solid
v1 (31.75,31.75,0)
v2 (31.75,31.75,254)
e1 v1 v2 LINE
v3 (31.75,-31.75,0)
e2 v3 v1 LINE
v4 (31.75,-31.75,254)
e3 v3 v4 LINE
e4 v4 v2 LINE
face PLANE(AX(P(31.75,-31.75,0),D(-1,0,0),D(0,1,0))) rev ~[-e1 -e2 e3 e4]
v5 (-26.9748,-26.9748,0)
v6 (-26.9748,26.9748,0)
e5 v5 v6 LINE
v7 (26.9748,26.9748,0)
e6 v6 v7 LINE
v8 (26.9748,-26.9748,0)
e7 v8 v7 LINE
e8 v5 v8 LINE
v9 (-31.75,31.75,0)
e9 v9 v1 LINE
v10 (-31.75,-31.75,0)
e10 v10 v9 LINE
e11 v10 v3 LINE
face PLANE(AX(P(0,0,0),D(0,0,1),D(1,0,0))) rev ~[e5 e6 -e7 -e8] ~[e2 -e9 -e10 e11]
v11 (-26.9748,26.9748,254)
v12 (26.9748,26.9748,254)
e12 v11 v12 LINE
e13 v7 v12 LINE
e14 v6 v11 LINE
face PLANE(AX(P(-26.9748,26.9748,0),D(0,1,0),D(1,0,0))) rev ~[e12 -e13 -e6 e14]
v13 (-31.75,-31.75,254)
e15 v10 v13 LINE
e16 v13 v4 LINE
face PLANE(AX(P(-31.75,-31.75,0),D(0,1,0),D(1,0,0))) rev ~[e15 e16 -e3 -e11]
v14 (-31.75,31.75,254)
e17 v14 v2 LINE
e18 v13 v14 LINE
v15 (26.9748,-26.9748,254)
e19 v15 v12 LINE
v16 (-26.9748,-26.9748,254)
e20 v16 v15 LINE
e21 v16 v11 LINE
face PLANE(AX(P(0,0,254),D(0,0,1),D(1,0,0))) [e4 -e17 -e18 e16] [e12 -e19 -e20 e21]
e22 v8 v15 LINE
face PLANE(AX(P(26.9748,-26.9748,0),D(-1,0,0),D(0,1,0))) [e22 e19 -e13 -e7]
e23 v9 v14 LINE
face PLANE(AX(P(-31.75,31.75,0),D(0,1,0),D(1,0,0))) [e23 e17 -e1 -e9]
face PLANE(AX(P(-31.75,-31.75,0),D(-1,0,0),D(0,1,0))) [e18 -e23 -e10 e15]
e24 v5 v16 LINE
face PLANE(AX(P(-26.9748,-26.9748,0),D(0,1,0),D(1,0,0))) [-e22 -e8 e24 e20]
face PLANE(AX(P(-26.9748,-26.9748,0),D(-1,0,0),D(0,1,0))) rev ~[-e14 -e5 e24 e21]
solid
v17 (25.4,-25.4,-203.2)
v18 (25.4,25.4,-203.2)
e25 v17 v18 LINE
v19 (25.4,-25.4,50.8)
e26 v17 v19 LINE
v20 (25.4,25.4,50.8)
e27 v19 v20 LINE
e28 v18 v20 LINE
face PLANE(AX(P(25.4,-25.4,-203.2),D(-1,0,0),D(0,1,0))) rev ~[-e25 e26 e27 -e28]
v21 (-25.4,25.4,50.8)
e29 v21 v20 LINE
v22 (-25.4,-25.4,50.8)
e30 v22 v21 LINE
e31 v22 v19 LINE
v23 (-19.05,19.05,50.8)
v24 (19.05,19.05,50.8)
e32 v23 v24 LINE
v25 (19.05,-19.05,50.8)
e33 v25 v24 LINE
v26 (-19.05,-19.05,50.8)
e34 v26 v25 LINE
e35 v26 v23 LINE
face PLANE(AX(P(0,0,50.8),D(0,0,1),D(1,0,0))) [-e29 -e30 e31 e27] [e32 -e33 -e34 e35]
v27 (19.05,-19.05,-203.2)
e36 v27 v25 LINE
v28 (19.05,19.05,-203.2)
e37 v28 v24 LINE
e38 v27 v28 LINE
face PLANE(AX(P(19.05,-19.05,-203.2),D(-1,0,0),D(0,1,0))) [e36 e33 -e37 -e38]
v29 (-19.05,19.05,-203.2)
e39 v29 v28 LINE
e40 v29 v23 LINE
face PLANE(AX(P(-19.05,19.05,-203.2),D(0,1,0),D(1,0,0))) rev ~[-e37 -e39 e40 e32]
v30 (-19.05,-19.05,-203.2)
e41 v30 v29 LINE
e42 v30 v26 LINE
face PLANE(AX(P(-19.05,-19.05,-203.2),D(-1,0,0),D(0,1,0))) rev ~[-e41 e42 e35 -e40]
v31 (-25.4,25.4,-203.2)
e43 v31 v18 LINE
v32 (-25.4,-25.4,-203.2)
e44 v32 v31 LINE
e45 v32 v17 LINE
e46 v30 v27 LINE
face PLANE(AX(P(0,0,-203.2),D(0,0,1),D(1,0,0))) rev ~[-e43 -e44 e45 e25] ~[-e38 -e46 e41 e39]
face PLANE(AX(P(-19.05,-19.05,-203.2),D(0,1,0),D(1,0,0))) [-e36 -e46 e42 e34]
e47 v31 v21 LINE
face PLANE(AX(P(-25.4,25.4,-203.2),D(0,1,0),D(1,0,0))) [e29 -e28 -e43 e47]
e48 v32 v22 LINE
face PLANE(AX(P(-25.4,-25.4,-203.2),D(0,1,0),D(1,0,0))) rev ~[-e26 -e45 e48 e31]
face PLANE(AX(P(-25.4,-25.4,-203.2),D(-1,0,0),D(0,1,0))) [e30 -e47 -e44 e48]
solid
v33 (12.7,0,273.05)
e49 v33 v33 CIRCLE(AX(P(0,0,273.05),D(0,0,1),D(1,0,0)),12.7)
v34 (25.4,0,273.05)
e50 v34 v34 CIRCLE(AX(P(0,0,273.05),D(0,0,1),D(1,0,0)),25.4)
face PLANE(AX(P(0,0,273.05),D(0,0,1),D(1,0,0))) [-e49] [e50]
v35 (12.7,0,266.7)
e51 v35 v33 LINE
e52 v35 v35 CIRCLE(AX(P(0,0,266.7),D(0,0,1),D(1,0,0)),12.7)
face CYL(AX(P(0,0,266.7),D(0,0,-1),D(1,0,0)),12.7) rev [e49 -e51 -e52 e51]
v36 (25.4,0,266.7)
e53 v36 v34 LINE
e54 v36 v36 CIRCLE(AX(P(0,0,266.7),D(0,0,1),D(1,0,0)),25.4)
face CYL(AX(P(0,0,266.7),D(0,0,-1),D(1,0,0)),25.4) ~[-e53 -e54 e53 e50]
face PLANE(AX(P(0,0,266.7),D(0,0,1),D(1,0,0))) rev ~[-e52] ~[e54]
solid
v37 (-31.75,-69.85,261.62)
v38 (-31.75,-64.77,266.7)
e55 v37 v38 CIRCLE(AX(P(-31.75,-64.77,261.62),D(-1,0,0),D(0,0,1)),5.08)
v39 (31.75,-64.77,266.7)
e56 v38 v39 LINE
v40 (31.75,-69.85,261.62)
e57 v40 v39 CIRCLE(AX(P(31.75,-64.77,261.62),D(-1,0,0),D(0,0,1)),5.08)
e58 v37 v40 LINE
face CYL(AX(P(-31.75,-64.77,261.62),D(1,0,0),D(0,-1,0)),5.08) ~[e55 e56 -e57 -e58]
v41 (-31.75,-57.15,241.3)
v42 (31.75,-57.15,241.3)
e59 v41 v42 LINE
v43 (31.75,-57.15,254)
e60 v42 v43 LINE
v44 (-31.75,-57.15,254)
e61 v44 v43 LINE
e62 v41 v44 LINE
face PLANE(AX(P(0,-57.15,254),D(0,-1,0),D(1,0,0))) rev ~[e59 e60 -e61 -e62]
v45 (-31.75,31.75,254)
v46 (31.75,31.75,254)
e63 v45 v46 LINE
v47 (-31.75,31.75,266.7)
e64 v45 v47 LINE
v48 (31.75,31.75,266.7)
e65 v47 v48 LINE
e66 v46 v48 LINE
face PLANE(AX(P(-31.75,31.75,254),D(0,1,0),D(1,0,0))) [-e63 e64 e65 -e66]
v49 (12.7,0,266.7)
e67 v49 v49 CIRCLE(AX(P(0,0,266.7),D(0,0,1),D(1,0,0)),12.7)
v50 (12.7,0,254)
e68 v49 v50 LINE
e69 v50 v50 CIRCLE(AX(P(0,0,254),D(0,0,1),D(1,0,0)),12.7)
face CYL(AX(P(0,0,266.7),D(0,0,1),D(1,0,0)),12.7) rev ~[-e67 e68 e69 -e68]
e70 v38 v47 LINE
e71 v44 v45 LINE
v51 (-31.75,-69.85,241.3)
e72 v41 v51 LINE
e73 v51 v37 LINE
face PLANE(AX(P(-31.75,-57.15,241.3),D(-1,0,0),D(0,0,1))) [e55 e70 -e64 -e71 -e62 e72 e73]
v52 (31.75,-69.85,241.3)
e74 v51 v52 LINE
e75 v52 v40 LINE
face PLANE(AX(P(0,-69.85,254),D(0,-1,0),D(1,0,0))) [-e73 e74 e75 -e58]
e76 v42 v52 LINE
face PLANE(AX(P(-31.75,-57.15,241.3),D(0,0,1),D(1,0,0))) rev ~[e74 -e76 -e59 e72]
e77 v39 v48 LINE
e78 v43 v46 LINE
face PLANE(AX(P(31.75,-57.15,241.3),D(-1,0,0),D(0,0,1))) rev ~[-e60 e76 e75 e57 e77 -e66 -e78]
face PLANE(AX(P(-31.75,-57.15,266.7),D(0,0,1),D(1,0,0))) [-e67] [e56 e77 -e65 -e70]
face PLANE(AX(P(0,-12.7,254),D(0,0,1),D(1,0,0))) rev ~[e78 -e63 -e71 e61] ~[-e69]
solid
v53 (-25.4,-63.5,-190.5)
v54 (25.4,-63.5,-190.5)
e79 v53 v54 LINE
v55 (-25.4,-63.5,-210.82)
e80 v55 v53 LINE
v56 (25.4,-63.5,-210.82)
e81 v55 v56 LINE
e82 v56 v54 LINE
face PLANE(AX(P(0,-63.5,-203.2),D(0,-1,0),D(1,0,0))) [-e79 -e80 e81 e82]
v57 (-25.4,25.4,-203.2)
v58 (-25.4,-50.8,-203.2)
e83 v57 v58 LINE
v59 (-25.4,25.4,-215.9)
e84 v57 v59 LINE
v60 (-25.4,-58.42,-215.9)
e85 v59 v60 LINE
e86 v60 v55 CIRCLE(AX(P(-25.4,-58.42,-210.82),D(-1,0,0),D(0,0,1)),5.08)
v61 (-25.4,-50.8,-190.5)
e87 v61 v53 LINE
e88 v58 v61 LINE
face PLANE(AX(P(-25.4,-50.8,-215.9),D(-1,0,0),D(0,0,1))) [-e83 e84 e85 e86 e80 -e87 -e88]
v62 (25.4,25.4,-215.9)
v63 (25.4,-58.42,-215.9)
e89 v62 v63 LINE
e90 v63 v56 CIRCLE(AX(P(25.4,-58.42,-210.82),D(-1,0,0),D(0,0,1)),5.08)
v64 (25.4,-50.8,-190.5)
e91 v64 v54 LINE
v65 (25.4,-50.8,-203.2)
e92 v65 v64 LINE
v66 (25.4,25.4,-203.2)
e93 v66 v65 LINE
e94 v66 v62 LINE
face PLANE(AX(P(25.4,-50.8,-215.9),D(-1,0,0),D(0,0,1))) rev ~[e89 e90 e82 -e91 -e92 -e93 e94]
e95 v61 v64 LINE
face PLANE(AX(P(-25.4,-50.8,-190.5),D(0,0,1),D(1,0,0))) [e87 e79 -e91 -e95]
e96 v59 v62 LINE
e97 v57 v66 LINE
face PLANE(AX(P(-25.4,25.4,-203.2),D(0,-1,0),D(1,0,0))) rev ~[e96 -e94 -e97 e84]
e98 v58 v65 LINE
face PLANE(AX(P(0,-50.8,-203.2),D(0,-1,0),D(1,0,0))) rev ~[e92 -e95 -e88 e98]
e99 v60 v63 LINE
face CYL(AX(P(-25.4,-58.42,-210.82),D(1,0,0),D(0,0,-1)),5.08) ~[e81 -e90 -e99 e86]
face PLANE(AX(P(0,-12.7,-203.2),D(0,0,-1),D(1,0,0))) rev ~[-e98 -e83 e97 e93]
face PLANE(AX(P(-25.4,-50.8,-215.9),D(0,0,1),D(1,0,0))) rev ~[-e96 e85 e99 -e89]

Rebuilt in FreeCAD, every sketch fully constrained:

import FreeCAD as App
import Part
import Sketcher
from FreeCAD import Vector
Q = App.Units.Quantity


def edges_at(feature, points):
    """Names of the edges that pass closest to the given points."""
    edges = feature.Shape.Edges
    near = lambda p: min(range(len(edges)), key=lambda i: edges[i].distToShape(Part.Vertex(*p))[0])
    return sorted({f"Edge{near(p) + 1}" for p in points})

doc = App.newDocument("Part")
params = doc.addObject("Spreadsheet::Sheet", "Params")
for row, (alias, value) in enumerate([
    ("sketch1_width", "2 in"),
    ("sketch1_width2", "1.5 in"),
    ("pad1_length", "10 in"),
    ("sketch2_width", "2.5 in"),
    ("sketch2_width2", "2.124 in"),
    ("pad2_length", "10 in"),
    ("sketch3_width", "2.5 in"),
    ("sketch3_height", "3.5 in"),
    ("pad3_length", "0.5 in"),
    ("sketch4_height", "1 in"),
    ("sketch4_width", "2.5 in"),
    ("pad4_length", "0.5 in"),
    ("sketch5_diameter", "1 in"),
    ("pocket1_length", "1 in"),
    ("fillet_radius", "0.2 in"),
    ("sketch6_width", "2 in"),
    ("sketch6_height", "3 in"),
    ("pad5_length", "0.5 in"),
    ("sketch7_width", "2 in"),
    ("sketch7_height", "1 in"),
    ("pad6_length", "0.5 in"),
    ("fillet2_radius", "0.2 in"),
    ("sketch8_diameter", "2 in"),
    ("sketch8_diameter2", "1 in"),
    ("pad7_length", "0.25 in"),
], start=1):
    params.set(f"A{row}", alias)
    params.set(f"B{row}", "=" + value)
    params.setAlias(f"B{row}", alias)

body = doc.addObject("PartDesign::Body", "Body")

# Sketch on XY plane
sketch1 = doc.addObject("Sketcher::SketchObject", "Sketch")
body.addObject(sketch1)
sketch1.AttachmentSupport = (doc.XY_Plane, [""])
sketch1.MapMode = "FlatFace"
sketch1.addGeometry([
    Part.LineSegment(Vector(-25.4, 25.4, 0), Vector(-25.4, -25.4, 0)),  # 0
    Part.LineSegment(Vector(-25.4, -25.4, 0), Vector(25.4, -25.4, 0)),  # 1
    Part.LineSegment(Vector(25.4, -25.4, 0), Vector(25.4, 25.4, 0)),  # 2
    Part.LineSegment(Vector(25.4, 25.4, 0), Vector(-25.4, 25.4, 0)),  # 3
    Part.LineSegment(Vector(19.05, -19.05, 0), Vector(-19.05, -19.05, 0)),  # 4
    Part.LineSegment(Vector(-19.05, -19.05, 0), Vector(-19.05, 19.05, 0)),  # 5
    Part.LineSegment(Vector(-19.05, 19.05, 0), Vector(19.05, 19.05, 0)),  # 6
    Part.LineSegment(Vector(19.05, 19.05, 0), Vector(19.05, -19.05, 0)),  # 7
], False)
sketch1.addConstraint([
    Sketcher.Constraint("Coincident", 0, 2, 1, 1),
    Sketcher.Constraint("Coincident", 1, 2, 2, 1),
    Sketcher.Constraint("Coincident", 2, 2, 3, 1),
    Sketcher.Constraint("Coincident", 3, 2, 0, 1),
    Sketcher.Constraint("Coincident", 4, 2, 5, 1),
    Sketcher.Constraint("Coincident", 5, 2, 6, 1),
    Sketcher.Constraint("Coincident", 6, 2, 7, 1),
    Sketcher.Constraint("Coincident", 7, 2, 4, 1),
    Sketcher.Constraint("Vertical", 0),
    Sketcher.Constraint("Horizontal", 1),
    Sketcher.Constraint("Vertical", 2),
    Sketcher.Constraint("Horizontal", 3),
    Sketcher.Constraint("Horizontal", 4),
    Sketcher.Constraint("Vertical", 5),
    Sketcher.Constraint("Horizontal", 6),
    Sketcher.Constraint("Vertical", 7),
    Sketcher.Constraint("Symmetric", 0, 2, 2, 2, -1, 1),
    Sketcher.Constraint("Symmetric", 4, 2, 6, 2, -1, 1),
    Sketcher.Constraint("Equal", 3, 0),
    Sketcher.Constraint("Equal", 6, 5),
    Sketcher.Constraint("DistanceX", 1, 1, 1, 2, Q("2 in")),
    Sketcher.Constraint("DistanceX", 4, 2, 4, 1, Q("1.5 in")),
])
sketch1.setExpression("Constraints[20]", "Params.sketch1_width")
sketch1.setExpression("Constraints[21]", "Params.sketch1_width2")
pad1 = doc.addObject("PartDesign::Pad", "Pad")
body.addObject(pad1)
pad1.Profile = sketch1
pad1.setExpression("Length", "Params.pad1_length")
body2 = doc.addObject("PartDesign::Body", "Body001")

# Sketch on XY plane
sketch2 = doc.addObject("Sketcher::SketchObject", "Sketch001")
body2.addObject(sketch2)
sketch2.AttachmentSupport = (doc.getObject("XY_Plane001"), [""])
sketch2.MapMode = "FlatFace"
sketch2.addGeometry([
    Part.LineSegment(Vector(-31.75, 31.75, 0), Vector(-31.75, -31.75, 0)),  # 0
    Part.LineSegment(Vector(-31.75, -31.75, 0), Vector(31.75, -31.75, 0)),  # 1
    Part.LineSegment(Vector(31.75, -31.75, 0), Vector(31.75, 31.75, 0)),  # 2
    Part.LineSegment(Vector(31.75, 31.75, 0), Vector(-31.75, 31.75, 0)),  # 3
    Part.LineSegment(Vector(26.9748, -26.9748, 0), Vector(-26.9748, -26.9748, 0)),  # 4
    Part.LineSegment(Vector(-26.9748, -26.9748, 0), Vector(-26.9748, 26.9748, 0)),  # 5
    Part.LineSegment(Vector(-26.9748, 26.9748, 0), Vector(26.9748, 26.9748, 0)),  # 6
    Part.LineSegment(Vector(26.9748, 26.9748, 0), Vector(26.9748, -26.9748, 0)),  # 7
], False)
sketch2.addConstraint([
    Sketcher.Constraint("Coincident", 0, 2, 1, 1),
    Sketcher.Constraint("Coincident", 1, 2, 2, 1),
    Sketcher.Constraint("Coincident", 2, 2, 3, 1),
    Sketcher.Constraint("Coincident", 3, 2, 0, 1),
    Sketcher.Constraint("Coincident", 4, 2, 5, 1),
    Sketcher.Constraint("Coincident", 5, 2, 6, 1),
    Sketcher.Constraint("Coincident", 6, 2, 7, 1),
    Sketcher.Constraint("Coincident", 7, 2, 4, 1),
    Sketcher.Constraint("Vertical", 0),
    Sketcher.Constraint("Horizontal", 1),
    Sketcher.Constraint("Vertical", 2),
    Sketcher.Constraint("Horizontal", 3),
    Sketcher.Constraint("Horizontal", 4),
    Sketcher.Constraint("Vertical", 5),
    Sketcher.Constraint("Horizontal", 6),
    Sketcher.Constraint("Vertical", 7),
    Sketcher.Constraint("Symmetric", 0, 2, 2, 2, -1, 1),
    Sketcher.Constraint("Symmetric", 4, 2, 6, 2, -1, 1),
    Sketcher.Constraint("Equal", 3, 0),
    Sketcher.Constraint("Equal", 6, 5),
    Sketcher.Constraint("DistanceX", 1, 1, 1, 2, Q("2.5 in")),
    Sketcher.Constraint("DistanceX", 4, 2, 4, 1, Q("2.124 in")),
])
sketch2.setExpression("Constraints[20]", "Params.sketch2_width")
sketch2.setExpression("Constraints[21]", "Params.sketch2_width2")
pad2 = doc.addObject("PartDesign::Pad", "Pad001")
body2.addObject(pad2)
pad2.Profile = sketch2
pad2.setExpression("Length", "Params.pad2_length")
body3 = doc.addObject("PartDesign::Body", "Body002")
doc.recompute()

body.Placement = App.Placement(Vector(0, 0, -203.2), App.Rotation(Vector(0, 0, 1), 0))
boolean = doc.addObject("PartDesign::Boolean", "Boolean")
body3.addObject(boolean)
boolean.Type = "Fuse"
boolean.addObjects([body])
body4 = doc.addObject("PartDesign::Body", "Body003")

# Sketch on XY plane
sketch3 = doc.addObject("Sketcher::SketchObject", "Sketch002")
body4.addObject(sketch3)
sketch3.AttachmentSupport = (doc.getObject("XY_Plane003"), [""])
sketch3.MapMode = "FlatFace"
sketch3.AttachmentOffset = App.Placement(Vector(0, 0, 10 * 25.4), App.Rotation())
sketch3.addGeometry([
    Part.LineSegment(Vector(-31.75, 31.75, 0), Vector(-31.75, -57.15, 0)),
    Part.LineSegment(Vector(-31.75, -57.15, 0), Vector(31.75, -57.15, 0)),
    Part.LineSegment(Vector(31.75, -57.15, 0), Vector(31.75, 31.75, 0)),
    Part.LineSegment(Vector(31.75, 31.75, 0), Vector(-31.75, 31.75, 0)),
], False)
sketch3.addConstraint([
    Sketcher.Constraint("Coincident", 0, 2, 1, 1),
    Sketcher.Constraint("Coincident", 1, 2, 2, 1),
    Sketcher.Constraint("Coincident", 2, 2, 3, 1),
    Sketcher.Constraint("Coincident", 3, 2, 0, 1),
    Sketcher.Constraint("Vertical", 0),
    Sketcher.Constraint("Horizontal", 1),
    Sketcher.Constraint("Vertical", 2),
    Sketcher.Constraint("Horizontal", 3),
    Sketcher.Constraint("DistanceX", 1, 1, 1, 2, Q("2.5 in")),
    Sketcher.Constraint("DistanceY", 0, 2, 0, 1, Q("3.5 in")),
    Sketcher.Constraint("DistanceX", 0, 2, -1, 1, Q("1.25 in")),
    Sketcher.Constraint("DistanceY", 0, 2, -1, 1, Q("2.25 in")),
])
sketch3.setExpression("Constraints[8]", "Params.sketch3_width")
sketch3.setExpression("Constraints[9]", "Params.sketch3_height")
pad3 = doc.addObject("PartDesign::Pad", "Pad002")
body4.addObject(pad3)
pad3.Profile = sketch3
pad3.setExpression("Length", "Params.pad3_length")

# Sketch on XZ plane
sketch4 = doc.addObject("Sketcher::SketchObject", "Sketch003")
body4.addObject(sketch4)
sketch4.AttachmentSupport = (doc.getObject("XZ_Plane003"), [""])
sketch4.MapMode = "FlatFace"
sketch4.AttachmentOffset = App.Placement(Vector(0, 0, 2.25 * 25.4), App.Rotation())
sketch4.addGeometry([
    Part.LineSegment(Vector(-31.75, 266.7, 0), Vector(-31.75, 241.3, 0)),
    Part.LineSegment(Vector(-31.75, 241.3, 0), Vector(31.75, 241.3, 0)),
    Part.LineSegment(Vector(31.75, 241.3, 0), Vector(31.75, 266.7, 0)),
    Part.LineSegment(Vector(31.75, 266.7, 0), Vector(-31.75, 266.7, 0)),
], False)
sketch4.addConstraint([
    Sketcher.Constraint("Coincident", 0, 2, 1, 1),
    Sketcher.Constraint("Coincident", 1, 2, 2, 1),
    Sketcher.Constraint("Coincident", 2, 2, 3, 1),
    Sketcher.Constraint("Coincident", 3, 2, 0, 1),
    Sketcher.Constraint("Vertical", 0),
    Sketcher.Constraint("Horizontal", 1),
    Sketcher.Constraint("Vertical", 2),
    Sketcher.Constraint("Horizontal", 3),
    Sketcher.Constraint("DistanceY", 0, 2, 0, 1, Q("1 in")),
    Sketcher.Constraint("DistanceX", 1, 1, 1, 2, Q("2.5 in")),
    Sketcher.Constraint("DistanceY", -1, 1, 0, 2, Q("9.5 in")),
    Sketcher.Constraint("DistanceX", 0, 2, -1, 1, Q("1.25 in")),
])
sketch4.setExpression("Constraints[8]", "Params.sketch4_height")
sketch4.setExpression("Constraints[9]", "Params.sketch4_width")
pad4 = doc.addObject("PartDesign::Pad", "Pad003")
body4.addObject(pad4)
pad4.Profile = sketch4
pad4.setExpression("Length", "Params.pad4_length")

# Sketch on XY plane
sketch5 = doc.addObject("Sketcher::SketchObject", "Sketch004")
body4.addObject(sketch5)
sketch5.AttachmentSupport = (doc.getObject("XY_Plane003"), [""])
sketch5.MapMode = "FlatFace"
sketch5.AttachmentOffset = App.Placement(Vector(0, 0, 10.5 * 25.4), App.Rotation())
sketch5.addGeometry(Part.Circle(Vector(0, 0, 0), Vector(0, 0, 1), 12.7), False)
sketch5.addConstraint([
    Sketcher.Constraint("Coincident", 0, 3, -1, 1),
    Sketcher.Constraint("Diameter", 0, Q("1 in")),
])
sketch5.setExpression("Constraints[1]", "Params.sketch5_diameter")
pocket1 = doc.addObject("PartDesign::Pocket", "Pocket")
body4.addObject(pocket1)
pocket1.Profile = sketch5
pocket1.setExpression("Length", "Params.pocket1_length")
doc.recompute()

fillet = doc.addObject("PartDesign::Fillet", "Fillet")
body4.addObject(fillet)
fillet.Base = (pocket1, edges_at(pocket1, [(0, -69.85, 266.7)]))
fillet.setExpression("Radius", "Params.fillet_radius")
body5 = doc.addObject("PartDesign::Body", "Body004")

# Sketch on XY plane
sketch6 = doc.addObject("Sketcher::SketchObject", "Sketch005")
body5.addObject(sketch6)
sketch6.AttachmentSupport = (doc.getObject("XY_Plane004"), [""])
sketch6.MapMode = "FlatFace"
sketch6.AttachmentOffset = App.Placement(Vector(0, 0, -8 * 25.4), App.Rotation())
sketch6.addGeometry([
    Part.LineSegment(Vector(-25.4, -50.8, 0), Vector(-25.4, 25.4, 0)),
    Part.LineSegment(Vector(-25.4, 25.4, 0), Vector(25.4, 25.4, 0)),
    Part.LineSegment(Vector(25.4, 25.4, 0), Vector(25.4, -50.8, 0)),
    Part.LineSegment(Vector(25.4, -50.8, 0), Vector(-25.4, -50.8, 0)),
], False)
sketch6.addConstraint([
    Sketcher.Constraint("Coincident", 0, 2, 1, 1),
    Sketcher.Constraint("Coincident", 1, 2, 2, 1),
    Sketcher.Constraint("Coincident", 2, 2, 3, 1),
    Sketcher.Constraint("Coincident", 3, 2, 0, 1),
    Sketcher.Constraint("Vertical", 0),
    Sketcher.Constraint("Horizontal", 1),
    Sketcher.Constraint("Vertical", 2),
    Sketcher.Constraint("Horizontal", 3),
    Sketcher.Constraint("DistanceX", 1, 1, 1, 2, Q("2 in")),
    Sketcher.Constraint("DistanceY", 0, 1, 0, 2, Q("3 in")),
    Sketcher.Constraint("DistanceX", 0, 2, -1, 1, Q("1 in")),
    Sketcher.Constraint("DistanceY", -1, 1, 0, 2, Q("1 in")),
])
sketch6.setExpression("Constraints[8]", "Params.sketch6_width")
sketch6.setExpression("Constraints[9]", "Params.sketch6_height")
pad5 = doc.addObject("PartDesign::Pad", "Pad004")
body5.addObject(pad5)
pad5.Profile = sketch6
pad5.setExpression("Length", "Params.pad5_length")
pad5.Reversed = True

# Sketch on XZ plane
sketch7 = doc.addObject("Sketcher::SketchObject", "Sketch006")
body5.addObject(sketch7)
sketch7.AttachmentSupport = (doc.getObject("XZ_Plane004"), [""])
sketch7.MapMode = "FlatFace"
sketch7.AttachmentOffset = App.Placement(Vector(0, 0, 2 * 25.4), App.Rotation())
sketch7.addGeometry([
    Part.LineSegment(Vector(-25.4, -190.5, 0), Vector(-25.4, -215.9, 0)),
    Part.LineSegment(Vector(-25.4, -215.9, 0), Vector(25.4, -215.9, 0)),
    Part.LineSegment(Vector(25.4, -215.9, 0), Vector(25.4, -190.5, 0)),
    Part.LineSegment(Vector(25.4, -190.5, 0), Vector(-25.4, -190.5, 0)),
], False)
sketch7.addConstraint([
    Sketcher.Constraint("Coincident", 0, 2, 1, 1),
    Sketcher.Constraint("Coincident", 1, 2, 2, 1),
    Sketcher.Constraint("Coincident", 2, 2, 3, 1),
    Sketcher.Constraint("Coincident", 3, 2, 0, 1),
    Sketcher.Constraint("Vertical", 0),
    Sketcher.Constraint("Horizontal", 1),
    Sketcher.Constraint("Vertical", 2),
    Sketcher.Constraint("Horizontal", 3),
    Sketcher.Constraint("DistanceX", 1, 1, 1, 2, Q("2 in")),
    Sketcher.Constraint("DistanceY", 0, 2, 0, 1, Q("1 in")),
    Sketcher.Constraint("DistanceX", 0, 2, -1, 1, Q("1 in")),
    Sketcher.Constraint("DistanceY", 0, 2, -1, 1, Q("8.5 in")),
])
sketch7.setExpression("Constraints[8]", "Params.sketch7_width")
sketch7.setExpression("Constraints[9]", "Params.sketch7_height")
pad6 = doc.addObject("PartDesign::Pad", "Pad005")
body5.addObject(pad6)
pad6.Profile = sketch7
pad6.setExpression("Length", "Params.pad6_length")
doc.recompute()

fillet2 = doc.addObject("PartDesign::Fillet", "Fillet001")
body5.addObject(fillet2)
fillet2.Base = (pad6, edges_at(pad6, [(0, -63.5, -215.9)]))
fillet2.setExpression("Radius", "Params.fillet2_radius")
body6 = doc.addObject("PartDesign::Body", "Body005")

# Sketch on XY plane
sketch8 = doc.addObject("Sketcher::SketchObject", "Sketch007")
body6.addObject(sketch8)
sketch8.AttachmentSupport = (doc.getObject("XY_Plane005"), [""])
sketch8.MapMode = "FlatFace"
sketch8.AttachmentOffset = App.Placement(Vector(0, 0, 10.5 * 25.4), App.Rotation())
sketch8.addGeometry([
    Part.Circle(Vector(0, 0, 0), Vector(0, 0, 1), 25.4),
    Part.Circle(Vector(0, 0, 0), Vector(0, 0, 1), 12.7),
], False)
sketch8.addConstraint([
    Sketcher.Constraint("Coincident", 0, 3, -1, 1),
    Sketcher.Constraint("Coincident", 1, 3, -1, 1),
    Sketcher.Constraint("Diameter", 0, Q("2 in")),
    Sketcher.Constraint("Diameter", 1, Q("1 in")),
])
sketch8.setExpression("Constraints[2]", "Params.sketch8_diameter")
sketch8.setExpression("Constraints[3]", "Params.sketch8_diameter2")
pad7 = doc.addObject("PartDesign::Pad", "Pad006")
body6.addObject(pad7)
pad7.Profile = sketch8
pad7.setExpression("Length", "Params.pad7_length")

doc.recompute()
